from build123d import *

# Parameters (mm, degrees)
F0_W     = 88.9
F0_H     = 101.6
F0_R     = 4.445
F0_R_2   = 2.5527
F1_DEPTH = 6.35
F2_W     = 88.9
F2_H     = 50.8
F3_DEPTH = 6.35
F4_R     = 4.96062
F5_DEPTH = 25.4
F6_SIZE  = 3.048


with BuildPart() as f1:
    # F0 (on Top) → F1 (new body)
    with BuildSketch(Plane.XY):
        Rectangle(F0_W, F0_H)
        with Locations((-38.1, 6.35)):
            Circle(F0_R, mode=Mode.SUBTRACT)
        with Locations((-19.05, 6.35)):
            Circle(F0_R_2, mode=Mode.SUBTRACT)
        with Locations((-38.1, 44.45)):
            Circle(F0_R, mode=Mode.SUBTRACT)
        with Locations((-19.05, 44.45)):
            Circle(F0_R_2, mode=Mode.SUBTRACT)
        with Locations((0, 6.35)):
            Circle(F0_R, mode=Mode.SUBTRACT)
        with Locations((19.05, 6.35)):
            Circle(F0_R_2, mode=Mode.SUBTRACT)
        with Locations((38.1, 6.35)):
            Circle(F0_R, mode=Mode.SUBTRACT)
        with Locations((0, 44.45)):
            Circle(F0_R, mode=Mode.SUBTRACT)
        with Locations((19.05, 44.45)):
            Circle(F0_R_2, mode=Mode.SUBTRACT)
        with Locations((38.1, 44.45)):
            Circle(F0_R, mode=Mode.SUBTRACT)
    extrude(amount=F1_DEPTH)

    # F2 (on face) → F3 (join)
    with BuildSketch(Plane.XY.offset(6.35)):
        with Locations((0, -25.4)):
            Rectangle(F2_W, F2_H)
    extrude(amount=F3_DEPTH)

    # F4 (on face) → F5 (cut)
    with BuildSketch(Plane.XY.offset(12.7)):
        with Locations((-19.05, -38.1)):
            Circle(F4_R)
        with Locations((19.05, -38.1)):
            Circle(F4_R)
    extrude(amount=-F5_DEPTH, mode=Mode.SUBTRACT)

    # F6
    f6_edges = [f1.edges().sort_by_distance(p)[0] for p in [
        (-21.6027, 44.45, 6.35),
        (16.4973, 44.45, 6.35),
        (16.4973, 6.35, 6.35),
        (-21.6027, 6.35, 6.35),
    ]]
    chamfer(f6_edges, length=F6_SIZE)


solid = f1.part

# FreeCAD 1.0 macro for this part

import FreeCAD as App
import Part
import Sketcher
from FreeCAD import Vector
Q = App.Units.Quantity


def edges_at(feature, points):
    """Names of the edges that pass closest to the given points."""
    edges = feature.Shape.Edges
    near = lambda p: min(range(len(edges)), key=lambda i: edges[i].distToShape(Part.Vertex(*p))[0])
    return sorted({f"Edge{near(p) + 1}" for p in points})

doc = App.newDocument("Part")
body = doc.addObject("PartDesign::Body", "Body")

# Sketch on XY plane
sketch1 = body.newObject("Sketcher::SketchObject", "Sketch")
sketch1.AttachmentSupport = (doc.getObject("XY_Plane"), [""])
sketch1.MapMode = "FlatFace"
sketch1.addGeometry(Part.LineSegment(Vector(-44.5, 50.8, 0), Vector(-44.5, -50.8, 0)), False)
sketch1.addGeometry(Part.LineSegment(Vector(-44.5, -50.8, 0), Vector(44.5, -50.8, 0)), False)
sketch1.addGeometry(Part.LineSegment(Vector(44.5, -50.8, 0), Vector(44.5, 50.8, 0)), False)
sketch1.addGeometry(Part.LineSegment(Vector(44.5, 50.8, 0), Vector(-44.5, 50.8, 0)), False)
sketch1.addGeometry(Part.Circle(Vector(-38.1, 6.3, 0), Vector(0, 0, 1), 4.4), False)
sketch1.addGeometry(Part.Circle(Vector(-19.1, 6.3, 0), Vector(0, 0, 1), 2.6), False)
sketch1.addGeometry(Part.Circle(Vector(0, 6.3, 0), Vector(0, 0, 1), 4.4), False)
sketch1.addGeometry(Part.Circle(Vector(19.1, 6.3, 0), Vector(0, 0, 1), 2.6), False)
sketch1.addGeometry(Part.Circle(Vector(38.1, 6.3, 0), Vector(0, 0, 1), 4.4), False)
sketch1.addGeometry(Part.Circle(Vector(-38.1, 44.5, 0), Vector(0, 0, 1), 4.4), False)
sketch1.addGeometry(Part.Circle(Vector(-19.1, 44.5, 0), Vector(0, 0, 1), 2.6), False)
sketch1.addGeometry(Part.Circle(Vector(0, 44.5, 0), Vector(0, 0, 1), 4.4), False)
sketch1.addGeometry(Part.Circle(Vector(19.1, 44.5, 0), Vector(0, 0, 1), 2.6), False)
sketch1.addGeometry(Part.Circle(Vector(38.1, 44.5, 0), Vector(0, 0, 1), 4.4), False)
sketch1.addConstraint(Sketcher.Constraint("Coincident", 0, 2, 1, 1))
sketch1.addConstraint(Sketcher.Constraint("Coincident", 1, 2, 2, 1))
sketch1.addConstraint(Sketcher.Constraint("Coincident", 2, 2, 3, 1))
sketch1.addConstraint(Sketcher.Constraint("Coincident", 3, 2, 0, 1))
sketch1.addConstraint(Sketcher.Constraint("Vertical", 0))
sketch1.addConstraint(Sketcher.Constraint("Horizontal", 1))
sketch1.addConstraint(Sketcher.Constraint("Vertical", 2))
sketch1.addConstraint(Sketcher.Constraint("Horizontal", 3))
sketch1.addConstraint(Sketcher.Constraint("Equal", 4, 6))
sketch1.addConstraint(Sketcher.Constraint("Equal", 5, 7))
sketch1.addConstraint(Sketcher.Constraint("Equal", 6, 8))
sketch1.addConstraint(Sketcher.Constraint("Equal", 8, 9))
sketch1.addConstraint(Sketcher.Constraint("Equal", 7, 10))
sketch1.addConstraint(Sketcher.Constraint("Equal", 9, 11))
sketch1.addConstraint(Sketcher.Constraint("Equal", 10, 12))
sketch1.addConstraint(Sketcher.Constraint("Equal", 11, 13))
sketch1.addConstraint(Sketcher.Constraint("Symmetric", 0, 2, 2, 2, -1, 1))
sketch1.addConstraint(Sketcher.Constraint("Symmetric", 5, 3, 7, 3, -2))
sketch1.addConstraint(Sketcher.Constraint("Symmetric", 4, 3, 8, 3, -2))
sketch1.addConstraint(Sketcher.Constraint("Symmetric", 10, 3, 12, 3, -2))
sketch1.addConstraint(Sketcher.Constraint("Symmetric", 9, 3, 13, 3, -2))
sketch1.addConstraint(Sketcher.Constraint("PointOnObject", 6, 3, -2))
sketch1.addConstraint(Sketcher.Constraint("PointOnObject", 11, 3, -2))
sketch1.addConstraint(Sketcher.Constraint("Horizontal", 4, 3, 5, 3))
sketch1.addConstraint(Sketcher.Constraint("Horizontal", 5, 3, 6, 3))
sketch1.addConstraint(Sketcher.Constraint("Horizontal", 9, 3, 10, 3))
sketch1.addConstraint(Sketcher.Constraint("Horizontal", 10, 3, 11, 3))
sketch1.addConstraint(Sketcher.Constraint("Vertical", 4, 3, 9, 3))
sketch1.addConstraint(Sketcher.Constraint("Vertical", 5, 3, 10, 3))
sketch1.addConstraint(Sketcher.Constraint("Diameter", 4, Q("0.35 in")))
sketch1.addConstraint(Sketcher.Constraint("DistanceY", 0, 2, 0, 1, Q("4 in")))
sketch1.addConstraint(Sketcher.Constraint("Diameter", 5, Q("0.201 in")))
sketch1.addConstraint(Sketcher.Constraint("DistanceX", 1, 1, 1, 2, Q("3.5 in")))
sketch1.addConstraint(Sketcher.Constraint("DistanceX", 4, 3, 8, 3, Q("3 in")))
sketch1.addConstraint(Sketcher.Constraint("DistanceX", 0, 2, 5, 3, Q("1 in")))
sketch1.addConstraint(Sketcher.Constraint("DistanceY", 4, 3, 9, 3, Q("1.5 in")))
sketch1.addConstraint(Sketcher.Constraint("DistanceY", -1, 1, 4, 3, Q("0.25 in")))
pad1 = body.newObject("PartDesign::Pad", "Pad")
pad1.Profile = sketch1
pad1.Length = Q("0.25 in")

# Sketch on XY plane
sketch2 = body.newObject("Sketcher::SketchObject", "Sketch001")
sketch2.AttachmentSupport = (doc.getObject("XY_Plane"), [""])
sketch2.MapMode = "FlatFace"
sketch2.AttachmentOffset = App.Placement(Vector(0, 0, 0.25 * 25.4), App.Rotation())
sketch2.addGeometry(Part.LineSegment(Vector(-44, 0, 0), Vector(-44, -51, 0)), False)
sketch2.addGeometry(Part.LineSegment(Vector(-44, -51, 0), Vector(44, -51, 0)), False)
sketch2.addGeometry(Part.LineSegment(Vector(44, -51, 0), Vector(44, 0, 0)), False)
sketch2.addGeometry(Part.LineSegment(Vector(44, 0, 0), Vector(-44, 0, 0)), False)
sketch2.addConstraint(Sketcher.Constraint("Coincident", 0, 2, 1, 1))
sketch2.addConstraint(Sketcher.Constraint("Coincident", 1, 2, 2, 1))
sketch2.addConstraint(Sketcher.Constraint("Coincident", 2, 2, 3, 1))
sketch2.addConstraint(Sketcher.Constraint("Coincident", 3, 2, 0, 1))
sketch2.addConstraint(Sketcher.Constraint("Vertical", 0))
sketch2.addConstraint(Sketcher.Constraint("Horizontal", 1))
sketch2.addConstraint(Sketcher.Constraint("Vertical", 2))
sketch2.addConstraint(Sketcher.Constraint("Horizontal", 3))
sketch2.addConstraint(Sketcher.Constraint("Symmetric", 2, 2, 3, 2, -1, 1))
sketch2.addConstraint(Sketcher.Constraint("DistanceY", 0, 2, 0, 1, Q("2 in")))
sketch2.addConstraint(Sketcher.Constraint("DistanceX", 1, 1, 1, 2, Q("3.5 in")))
pad2 = body.newObject("PartDesign::Pad", "Pad001")
pad2.Profile = sketch2
pad2.Length = Q("0.25 in")

# Sketch on XY plane
sketch3 = body.newObject("Sketcher::SketchObject", "Sketch002")
sketch3.AttachmentSupport = (doc.getObject("XY_Plane"), [""])
sketch3.MapMode = "FlatFace"
sketch3.AttachmentOffset = App.Placement(Vector(0, 0, 0.5 * 25.4), App.Rotation())
sketch3.addGeometry(Part.Circle(Vector(-19.1, -38.1, 0), Vector(0, 0, 1), 5), False)
sketch3.addGeometry(Part.Circle(Vector(19.1, -38.1, 0), Vector(0, 0, 1), 5), False)
sketch3.addConstraint(Sketcher.Constraint("Equal", 0, 1))
sketch3.addConstraint(Sketcher.Constraint("Symmetric", 0, 3, 1, 3, -2))
sketch3.addConstraint(Sketcher.Constraint("Diameter", 0, Q("0.3906 in")))
sketch3.addConstraint(Sketcher.Constraint("DistanceY", 0, 3, -1, 1, Q("1.5 in")))
sketch3.addConstraint(Sketcher.Constraint("DistanceX", 0, 3, 1, 3, Q("1.5 in")))
pocket1 = body.newObject("PartDesign::Pocket", "Pocket")
pocket1.Profile = sketch3
pocket1.Length = Q("1 in")
doc.recompute()

chamfer = body.newObject("PartDesign::Chamfer", "Chamfer")
chamfer.Base = (pocket1, edges_at(pocket1, [
    (-21.603, 44.45, 6.35),
    (16.497, 44.45, 6.35),
    (16.497, 6.35, 6.35),
    (-21.603, 6.35, 6.35),
]))
chamfer.Size = Q("0.12 in")

doc.recompute()
